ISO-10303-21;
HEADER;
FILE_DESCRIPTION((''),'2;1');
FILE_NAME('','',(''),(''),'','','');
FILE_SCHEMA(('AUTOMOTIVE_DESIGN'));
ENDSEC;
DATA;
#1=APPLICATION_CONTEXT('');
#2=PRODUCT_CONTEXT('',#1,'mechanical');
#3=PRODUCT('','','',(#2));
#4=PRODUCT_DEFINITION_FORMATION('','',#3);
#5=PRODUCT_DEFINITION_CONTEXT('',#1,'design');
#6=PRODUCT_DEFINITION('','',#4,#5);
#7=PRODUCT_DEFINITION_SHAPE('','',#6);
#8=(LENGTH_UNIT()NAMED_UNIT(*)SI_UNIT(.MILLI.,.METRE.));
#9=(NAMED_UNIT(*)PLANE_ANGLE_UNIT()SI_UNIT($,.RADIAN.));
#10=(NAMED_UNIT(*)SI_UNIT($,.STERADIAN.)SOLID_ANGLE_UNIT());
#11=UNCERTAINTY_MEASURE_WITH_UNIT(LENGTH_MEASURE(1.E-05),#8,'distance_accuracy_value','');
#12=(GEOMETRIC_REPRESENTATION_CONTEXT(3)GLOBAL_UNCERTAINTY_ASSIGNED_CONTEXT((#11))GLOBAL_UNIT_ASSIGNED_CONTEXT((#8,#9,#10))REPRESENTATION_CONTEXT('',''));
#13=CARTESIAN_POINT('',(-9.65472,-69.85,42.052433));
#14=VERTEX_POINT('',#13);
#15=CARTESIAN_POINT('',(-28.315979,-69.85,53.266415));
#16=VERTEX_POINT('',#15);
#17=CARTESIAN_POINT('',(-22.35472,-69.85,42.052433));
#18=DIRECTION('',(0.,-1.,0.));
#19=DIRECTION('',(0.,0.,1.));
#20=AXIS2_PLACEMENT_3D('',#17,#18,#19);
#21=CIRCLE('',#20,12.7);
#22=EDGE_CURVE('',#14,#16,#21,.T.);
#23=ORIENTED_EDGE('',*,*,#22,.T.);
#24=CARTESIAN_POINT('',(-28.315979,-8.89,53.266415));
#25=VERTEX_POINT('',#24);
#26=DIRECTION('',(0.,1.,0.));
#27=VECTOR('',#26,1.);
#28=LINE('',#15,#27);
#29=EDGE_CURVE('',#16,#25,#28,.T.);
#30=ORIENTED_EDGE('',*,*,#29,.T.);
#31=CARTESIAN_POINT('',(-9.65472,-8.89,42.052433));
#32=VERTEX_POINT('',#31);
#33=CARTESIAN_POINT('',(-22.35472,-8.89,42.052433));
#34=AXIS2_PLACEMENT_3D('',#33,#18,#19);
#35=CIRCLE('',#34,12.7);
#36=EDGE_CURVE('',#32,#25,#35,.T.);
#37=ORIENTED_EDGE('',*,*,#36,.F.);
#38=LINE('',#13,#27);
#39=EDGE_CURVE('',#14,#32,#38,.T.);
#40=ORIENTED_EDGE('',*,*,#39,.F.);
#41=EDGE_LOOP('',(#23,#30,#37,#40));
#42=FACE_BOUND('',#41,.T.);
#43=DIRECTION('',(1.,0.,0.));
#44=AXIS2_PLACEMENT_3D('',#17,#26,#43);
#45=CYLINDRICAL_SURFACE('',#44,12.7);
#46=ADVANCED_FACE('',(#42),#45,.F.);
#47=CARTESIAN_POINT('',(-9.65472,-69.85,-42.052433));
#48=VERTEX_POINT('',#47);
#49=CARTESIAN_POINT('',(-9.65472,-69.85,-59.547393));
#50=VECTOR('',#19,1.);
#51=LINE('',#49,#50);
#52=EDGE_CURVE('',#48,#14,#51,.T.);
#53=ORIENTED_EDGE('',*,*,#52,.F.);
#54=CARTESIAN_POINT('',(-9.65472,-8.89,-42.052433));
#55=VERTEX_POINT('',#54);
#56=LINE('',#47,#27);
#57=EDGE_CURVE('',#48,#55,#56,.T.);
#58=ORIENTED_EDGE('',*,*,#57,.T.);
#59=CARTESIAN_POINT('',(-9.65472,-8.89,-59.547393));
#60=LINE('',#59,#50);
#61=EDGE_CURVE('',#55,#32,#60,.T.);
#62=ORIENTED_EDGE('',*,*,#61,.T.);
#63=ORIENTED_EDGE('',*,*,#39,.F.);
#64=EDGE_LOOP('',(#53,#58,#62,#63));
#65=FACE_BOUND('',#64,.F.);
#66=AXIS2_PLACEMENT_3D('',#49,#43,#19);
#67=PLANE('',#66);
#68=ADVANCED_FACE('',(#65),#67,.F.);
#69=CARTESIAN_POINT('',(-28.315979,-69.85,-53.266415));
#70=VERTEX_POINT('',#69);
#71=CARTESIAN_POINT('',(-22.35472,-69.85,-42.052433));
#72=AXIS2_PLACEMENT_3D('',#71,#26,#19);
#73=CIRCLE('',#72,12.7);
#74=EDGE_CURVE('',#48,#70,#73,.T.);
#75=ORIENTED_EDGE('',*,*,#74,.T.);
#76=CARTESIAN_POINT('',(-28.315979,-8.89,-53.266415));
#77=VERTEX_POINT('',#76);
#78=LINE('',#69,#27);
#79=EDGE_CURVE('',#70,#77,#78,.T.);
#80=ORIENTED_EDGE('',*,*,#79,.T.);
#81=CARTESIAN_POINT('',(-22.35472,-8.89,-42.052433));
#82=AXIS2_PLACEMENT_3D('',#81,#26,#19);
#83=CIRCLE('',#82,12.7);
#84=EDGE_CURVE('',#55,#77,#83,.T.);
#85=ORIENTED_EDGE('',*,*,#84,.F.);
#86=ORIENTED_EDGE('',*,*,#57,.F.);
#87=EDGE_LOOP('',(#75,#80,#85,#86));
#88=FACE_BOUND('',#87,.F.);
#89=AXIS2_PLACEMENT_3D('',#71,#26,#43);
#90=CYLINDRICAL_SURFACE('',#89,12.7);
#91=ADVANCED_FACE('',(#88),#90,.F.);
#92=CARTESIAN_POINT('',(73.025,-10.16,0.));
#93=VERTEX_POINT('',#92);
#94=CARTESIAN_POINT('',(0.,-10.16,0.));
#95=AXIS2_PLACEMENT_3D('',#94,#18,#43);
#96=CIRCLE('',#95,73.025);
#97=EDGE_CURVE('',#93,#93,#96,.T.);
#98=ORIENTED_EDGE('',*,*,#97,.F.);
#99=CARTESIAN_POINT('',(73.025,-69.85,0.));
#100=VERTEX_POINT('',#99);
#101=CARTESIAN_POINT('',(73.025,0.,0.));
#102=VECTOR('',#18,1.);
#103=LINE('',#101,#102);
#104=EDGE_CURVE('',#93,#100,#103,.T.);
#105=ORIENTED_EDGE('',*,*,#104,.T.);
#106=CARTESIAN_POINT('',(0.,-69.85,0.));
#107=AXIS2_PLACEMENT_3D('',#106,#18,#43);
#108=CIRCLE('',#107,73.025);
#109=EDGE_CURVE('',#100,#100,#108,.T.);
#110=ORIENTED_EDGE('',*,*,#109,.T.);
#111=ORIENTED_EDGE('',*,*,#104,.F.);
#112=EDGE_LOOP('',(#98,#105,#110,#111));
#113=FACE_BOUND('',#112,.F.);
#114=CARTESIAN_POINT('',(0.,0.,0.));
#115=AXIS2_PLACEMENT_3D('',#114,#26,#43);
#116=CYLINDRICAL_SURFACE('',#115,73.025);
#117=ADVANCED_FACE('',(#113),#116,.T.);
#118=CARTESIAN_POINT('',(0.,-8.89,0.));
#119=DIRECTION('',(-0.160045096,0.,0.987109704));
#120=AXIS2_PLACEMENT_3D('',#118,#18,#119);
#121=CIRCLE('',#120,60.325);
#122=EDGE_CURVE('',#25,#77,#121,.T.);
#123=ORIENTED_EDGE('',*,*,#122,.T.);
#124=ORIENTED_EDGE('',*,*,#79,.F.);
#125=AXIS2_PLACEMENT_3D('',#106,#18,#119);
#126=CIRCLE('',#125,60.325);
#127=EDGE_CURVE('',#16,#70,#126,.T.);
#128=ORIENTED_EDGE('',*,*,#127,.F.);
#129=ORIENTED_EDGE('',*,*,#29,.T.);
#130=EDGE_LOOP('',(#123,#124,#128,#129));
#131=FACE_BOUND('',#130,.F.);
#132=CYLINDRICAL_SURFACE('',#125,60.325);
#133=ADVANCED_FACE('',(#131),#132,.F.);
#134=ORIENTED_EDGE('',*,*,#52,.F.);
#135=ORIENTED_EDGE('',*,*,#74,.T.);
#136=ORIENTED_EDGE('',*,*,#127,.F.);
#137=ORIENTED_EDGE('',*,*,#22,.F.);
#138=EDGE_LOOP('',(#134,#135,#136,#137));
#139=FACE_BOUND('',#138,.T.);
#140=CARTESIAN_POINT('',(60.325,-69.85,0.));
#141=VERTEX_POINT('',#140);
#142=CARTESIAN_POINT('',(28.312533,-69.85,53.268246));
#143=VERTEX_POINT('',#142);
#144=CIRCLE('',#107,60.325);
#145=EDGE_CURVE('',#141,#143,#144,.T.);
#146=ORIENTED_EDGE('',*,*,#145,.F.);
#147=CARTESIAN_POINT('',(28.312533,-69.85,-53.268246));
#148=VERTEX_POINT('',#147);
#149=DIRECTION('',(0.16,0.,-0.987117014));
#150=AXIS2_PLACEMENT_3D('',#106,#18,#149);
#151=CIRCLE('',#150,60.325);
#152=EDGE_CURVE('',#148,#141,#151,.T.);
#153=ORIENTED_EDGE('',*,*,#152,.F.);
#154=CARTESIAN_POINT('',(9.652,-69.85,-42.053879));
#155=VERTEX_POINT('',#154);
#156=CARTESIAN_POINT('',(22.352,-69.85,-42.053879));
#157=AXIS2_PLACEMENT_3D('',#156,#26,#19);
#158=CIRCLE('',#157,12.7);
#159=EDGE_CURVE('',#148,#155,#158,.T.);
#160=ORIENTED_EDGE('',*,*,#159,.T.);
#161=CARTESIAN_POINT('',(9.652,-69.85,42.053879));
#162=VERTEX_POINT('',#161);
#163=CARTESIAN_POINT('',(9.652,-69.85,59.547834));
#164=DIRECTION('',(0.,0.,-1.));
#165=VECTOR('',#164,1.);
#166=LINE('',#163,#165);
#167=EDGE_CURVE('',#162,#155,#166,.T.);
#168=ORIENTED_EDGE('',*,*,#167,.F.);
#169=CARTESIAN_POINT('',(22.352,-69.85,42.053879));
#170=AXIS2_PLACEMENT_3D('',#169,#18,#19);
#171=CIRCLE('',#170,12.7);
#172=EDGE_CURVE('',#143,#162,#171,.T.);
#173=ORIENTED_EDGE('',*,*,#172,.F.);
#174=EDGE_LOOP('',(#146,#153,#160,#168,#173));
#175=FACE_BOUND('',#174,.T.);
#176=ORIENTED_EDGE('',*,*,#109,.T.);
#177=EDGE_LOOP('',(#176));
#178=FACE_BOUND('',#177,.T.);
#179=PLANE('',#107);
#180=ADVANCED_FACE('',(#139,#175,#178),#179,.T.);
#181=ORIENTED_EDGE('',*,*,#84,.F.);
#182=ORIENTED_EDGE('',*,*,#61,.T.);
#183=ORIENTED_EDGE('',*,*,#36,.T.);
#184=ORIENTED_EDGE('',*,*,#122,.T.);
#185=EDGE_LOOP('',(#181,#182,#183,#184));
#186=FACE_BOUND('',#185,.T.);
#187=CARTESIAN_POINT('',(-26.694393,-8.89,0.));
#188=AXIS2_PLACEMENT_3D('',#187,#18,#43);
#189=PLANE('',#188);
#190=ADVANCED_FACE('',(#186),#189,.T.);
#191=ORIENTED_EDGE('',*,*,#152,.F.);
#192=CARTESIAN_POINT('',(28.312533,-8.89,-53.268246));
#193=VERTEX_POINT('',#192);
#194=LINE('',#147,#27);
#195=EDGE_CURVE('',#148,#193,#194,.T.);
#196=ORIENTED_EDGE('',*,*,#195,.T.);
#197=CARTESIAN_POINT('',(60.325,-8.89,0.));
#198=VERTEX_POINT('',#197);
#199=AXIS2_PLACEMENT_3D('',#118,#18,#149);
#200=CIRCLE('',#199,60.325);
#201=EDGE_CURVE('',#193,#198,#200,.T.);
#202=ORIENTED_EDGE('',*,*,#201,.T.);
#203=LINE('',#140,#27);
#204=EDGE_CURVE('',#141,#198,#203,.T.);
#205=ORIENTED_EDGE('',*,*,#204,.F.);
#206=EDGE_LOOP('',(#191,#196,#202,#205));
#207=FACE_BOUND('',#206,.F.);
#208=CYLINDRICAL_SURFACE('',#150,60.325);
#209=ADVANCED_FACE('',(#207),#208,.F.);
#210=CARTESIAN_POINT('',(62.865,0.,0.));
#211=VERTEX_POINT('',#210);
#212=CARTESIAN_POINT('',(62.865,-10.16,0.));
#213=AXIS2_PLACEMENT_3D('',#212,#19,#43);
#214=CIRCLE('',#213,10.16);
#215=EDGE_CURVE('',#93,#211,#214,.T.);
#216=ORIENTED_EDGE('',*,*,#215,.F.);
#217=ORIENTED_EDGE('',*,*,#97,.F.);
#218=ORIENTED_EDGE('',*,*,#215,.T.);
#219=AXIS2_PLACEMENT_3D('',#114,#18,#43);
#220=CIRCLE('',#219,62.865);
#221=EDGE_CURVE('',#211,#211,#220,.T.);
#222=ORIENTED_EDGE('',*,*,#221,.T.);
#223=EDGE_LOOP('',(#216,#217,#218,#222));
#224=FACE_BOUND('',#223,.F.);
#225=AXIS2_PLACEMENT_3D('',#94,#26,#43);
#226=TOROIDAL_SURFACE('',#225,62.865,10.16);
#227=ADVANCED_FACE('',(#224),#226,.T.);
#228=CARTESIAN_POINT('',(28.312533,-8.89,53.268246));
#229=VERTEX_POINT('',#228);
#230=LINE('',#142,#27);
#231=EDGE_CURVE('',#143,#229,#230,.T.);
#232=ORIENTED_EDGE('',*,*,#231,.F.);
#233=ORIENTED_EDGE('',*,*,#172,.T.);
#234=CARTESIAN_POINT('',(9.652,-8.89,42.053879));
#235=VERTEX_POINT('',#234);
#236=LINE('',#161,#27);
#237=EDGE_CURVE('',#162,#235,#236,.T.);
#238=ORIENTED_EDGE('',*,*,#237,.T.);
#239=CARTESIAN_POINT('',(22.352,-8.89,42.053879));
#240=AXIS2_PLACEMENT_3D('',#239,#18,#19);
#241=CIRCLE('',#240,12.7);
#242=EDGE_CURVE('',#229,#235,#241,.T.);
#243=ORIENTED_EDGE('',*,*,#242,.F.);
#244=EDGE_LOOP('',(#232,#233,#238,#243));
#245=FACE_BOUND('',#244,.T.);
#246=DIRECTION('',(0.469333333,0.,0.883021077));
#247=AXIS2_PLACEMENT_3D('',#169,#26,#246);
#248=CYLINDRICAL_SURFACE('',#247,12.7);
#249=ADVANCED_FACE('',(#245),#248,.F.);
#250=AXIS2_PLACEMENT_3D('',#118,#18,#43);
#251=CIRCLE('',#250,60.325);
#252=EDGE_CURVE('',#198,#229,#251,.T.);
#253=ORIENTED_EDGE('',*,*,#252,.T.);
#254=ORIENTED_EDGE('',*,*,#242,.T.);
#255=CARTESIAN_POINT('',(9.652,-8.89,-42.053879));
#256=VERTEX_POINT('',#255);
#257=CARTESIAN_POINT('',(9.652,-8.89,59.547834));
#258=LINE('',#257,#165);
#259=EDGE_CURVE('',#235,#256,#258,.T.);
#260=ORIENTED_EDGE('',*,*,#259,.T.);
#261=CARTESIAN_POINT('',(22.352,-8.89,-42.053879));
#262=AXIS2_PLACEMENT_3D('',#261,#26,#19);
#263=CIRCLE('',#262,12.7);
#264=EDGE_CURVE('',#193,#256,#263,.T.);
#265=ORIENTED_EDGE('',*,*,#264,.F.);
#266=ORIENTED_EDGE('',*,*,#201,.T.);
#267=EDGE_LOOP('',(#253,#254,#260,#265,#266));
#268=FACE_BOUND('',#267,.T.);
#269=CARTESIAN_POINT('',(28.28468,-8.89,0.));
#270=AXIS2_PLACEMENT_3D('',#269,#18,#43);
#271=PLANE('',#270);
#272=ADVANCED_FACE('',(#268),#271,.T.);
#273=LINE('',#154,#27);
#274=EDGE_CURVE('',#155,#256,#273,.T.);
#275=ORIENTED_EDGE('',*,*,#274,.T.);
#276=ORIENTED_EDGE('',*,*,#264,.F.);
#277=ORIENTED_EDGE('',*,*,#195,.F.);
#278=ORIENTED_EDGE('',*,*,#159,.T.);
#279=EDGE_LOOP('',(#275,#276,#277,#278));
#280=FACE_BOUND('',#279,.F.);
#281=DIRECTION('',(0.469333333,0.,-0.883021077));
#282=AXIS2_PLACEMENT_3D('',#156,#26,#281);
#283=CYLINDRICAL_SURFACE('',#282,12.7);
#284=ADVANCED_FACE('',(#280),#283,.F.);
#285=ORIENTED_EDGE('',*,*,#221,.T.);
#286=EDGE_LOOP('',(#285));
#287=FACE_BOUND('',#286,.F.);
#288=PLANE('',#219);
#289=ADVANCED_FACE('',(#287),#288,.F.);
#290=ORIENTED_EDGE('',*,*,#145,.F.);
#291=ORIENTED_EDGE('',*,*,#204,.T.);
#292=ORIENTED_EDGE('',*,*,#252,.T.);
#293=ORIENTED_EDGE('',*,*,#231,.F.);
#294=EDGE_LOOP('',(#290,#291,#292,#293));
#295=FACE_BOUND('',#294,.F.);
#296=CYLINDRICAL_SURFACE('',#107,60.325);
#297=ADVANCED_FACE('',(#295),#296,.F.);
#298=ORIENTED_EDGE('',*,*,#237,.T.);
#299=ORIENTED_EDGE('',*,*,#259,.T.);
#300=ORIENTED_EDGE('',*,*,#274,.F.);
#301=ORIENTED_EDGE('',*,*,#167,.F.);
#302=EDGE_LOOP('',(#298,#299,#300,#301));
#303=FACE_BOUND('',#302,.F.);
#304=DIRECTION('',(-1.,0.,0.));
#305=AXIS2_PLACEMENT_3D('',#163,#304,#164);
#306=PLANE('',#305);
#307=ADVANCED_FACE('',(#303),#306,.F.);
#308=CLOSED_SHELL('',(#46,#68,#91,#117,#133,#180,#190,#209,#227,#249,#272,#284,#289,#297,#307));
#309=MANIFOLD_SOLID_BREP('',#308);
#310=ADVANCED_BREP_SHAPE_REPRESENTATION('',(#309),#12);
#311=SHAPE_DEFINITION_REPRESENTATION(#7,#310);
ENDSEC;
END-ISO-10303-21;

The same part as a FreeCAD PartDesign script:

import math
import FreeCAD as App
import Part
import Sketcher
Q = App.Units.Quantity


def edges_at(feature, points):
    """Names of the edges that pass closest to the given points."""
    edges = feature.Shape.Edges
    near = lambda p: min(range(len(edges)), key=lambda i: edges[i].distToShape(Part.Vertex(*p))[0])
    return sorted({f"Edge{near(p) + 1}" for p in points})

doc = App.newDocument("Part")
body = doc.addObject("PartDesign::Body", "Body")

sketch1 = doc.addObject("Sketcher::SketchObject", "Sketch")
body.addObject(sketch1)
sketch1.AttachmentSupport = (doc.XZ_Plane, [""])
sketch1.MapMode = "FlatFace"
sketch1.addGeometry(Part.Circle(App.Vector(0, 0, 0), App.Vector(0, 0, 1), 73.025), False)
sketch1.addConstraint(Sketcher.Constraint("Coincident", 0, 3, -1, 1))
sketch1.addConstraint(Sketcher.Constraint("Diameter", 0, Q("5.75 in")))
pad1 = doc.addObject("PartDesign::Pad", "Pad")
body.addObject(pad1)
pad1.Profile = sketch1
pad1.Length = Q("2.75 in")

sketch2 = doc.addObject("Sketcher::SketchObject", "Sketch001")
body.addObject(sketch2)
sketch2.AttachmentSupport = (doc.XZ_Plane, [""])
sketch2.MapMode = "FlatFace"
sketch2.AttachmentOffset = App.Placement(App.Vector(0, 0, 2.75 * 25.4), App.Rotation())
sketch2.addGeometry(Part.LineSegment(App.Vector(-9.65472, -59.547393, 0), App.Vector(-9.65472, 59.547393, 0)), False)
sketch2.addGeometry(Part.ArcOfCircle(Part.Circle(App.Vector(0, 0, 0), App.Vector(0, 0, 1), 60.325), math.radians(99.209514), math.radians(260.790486)), False)
sketch2.addGeometry(Part.ArcOfCircle(Part.Circle(App.Vector(0, 0, 0), App.Vector(0, 0, 1), 60.325), math.radians(-80.793104), math.radians(0)), False)
sketch2.addGeometry(Part.ArcOfCircle(Part.Circle(App.Vector(0, 0, 0), App.Vector(0, 0, 1), 60.325), math.radians(0), math.radians(80.793104)), False)
sketch2.addGeometry(Part.LineSegment(App.Vector(9.652, 59.547834, 0), App.Vector(9.652, -59.547834, 0)), False)
sketch2.addConstraint(Sketcher.Constraint("Coincident", 0, 1, 1, 2))
sketch2.addConstraint(Sketcher.Constraint("Coincident", 1, 1, 0, 2))
sketch2.addConstraint(Sketcher.Constraint("Tangent", 2, 2, 3, 1))
sketch2.addConstraint(Sketcher.Constraint("Coincident", 3, 2, 4, 1))
sketch2.addConstraint(Sketcher.Constraint("Coincident", 4, 2, 2, 1))
sketch2.addConstraint(Sketcher.Constraint("Vertical", 0))
sketch2.addConstraint(Sketcher.Constraint("Vertical", 4))
sketch2.addConstraint(Sketcher.Constraint("Coincident", 1, 3, -1, 1))
sketch2.addConstraint(Sketcher.Constraint("Coincident", 2, 3, -1, 1))
sketch2.addConstraint(Sketcher.Constraint("Equal", 1, 2))
sketch2.addConstraint(Sketcher.Constraint("Equal", 2, 3))
sketch2.addConstraint(Sketcher.Constraint("PointOnObject", 2, 2, -1))
sketch2.addConstraint(Sketcher.Constraint("Radius", 1, Q("2.375 in")))
sketch2.addConstraint(Sketcher.Constraint("DistanceX", -1, 1, 3, 2, Q("0.38 in")))
sketch2.addConstraint(Sketcher.Constraint("DistanceY", 0, 1, 0, 2, 119.094786))
pocket1 = doc.addObject("PartDesign::Pocket", "Pocket")
body.addObject(pocket1)
pocket1.Profile = sketch2
pocket1.Length = Q("2.4 in")
doc.recompute()

fillet = doc.addObject("PartDesign::Fillet", "Fillet")
body.addObject(fillet)
fillet.Base = (pocket1, edges_at(pocket1, [
    (9.652, -39.37, 59.548),
    (-9.655, -39.37, 59.547),
    (9.652, -39.37, -59.548),
    (-9.655, -39.37, -59.547),
]))
fillet.Radius = Q("0.5 in")
doc.recompute()

fillet2 = doc.addObject("PartDesign::Fillet", "Fillet001")
body.addObject(fillet2)
fillet2.Base = (fillet, edges_at(fillet, [(-73.025, 0, 0)]))
fillet2.Radius = Q("0.4 in")

doc.recompute()
